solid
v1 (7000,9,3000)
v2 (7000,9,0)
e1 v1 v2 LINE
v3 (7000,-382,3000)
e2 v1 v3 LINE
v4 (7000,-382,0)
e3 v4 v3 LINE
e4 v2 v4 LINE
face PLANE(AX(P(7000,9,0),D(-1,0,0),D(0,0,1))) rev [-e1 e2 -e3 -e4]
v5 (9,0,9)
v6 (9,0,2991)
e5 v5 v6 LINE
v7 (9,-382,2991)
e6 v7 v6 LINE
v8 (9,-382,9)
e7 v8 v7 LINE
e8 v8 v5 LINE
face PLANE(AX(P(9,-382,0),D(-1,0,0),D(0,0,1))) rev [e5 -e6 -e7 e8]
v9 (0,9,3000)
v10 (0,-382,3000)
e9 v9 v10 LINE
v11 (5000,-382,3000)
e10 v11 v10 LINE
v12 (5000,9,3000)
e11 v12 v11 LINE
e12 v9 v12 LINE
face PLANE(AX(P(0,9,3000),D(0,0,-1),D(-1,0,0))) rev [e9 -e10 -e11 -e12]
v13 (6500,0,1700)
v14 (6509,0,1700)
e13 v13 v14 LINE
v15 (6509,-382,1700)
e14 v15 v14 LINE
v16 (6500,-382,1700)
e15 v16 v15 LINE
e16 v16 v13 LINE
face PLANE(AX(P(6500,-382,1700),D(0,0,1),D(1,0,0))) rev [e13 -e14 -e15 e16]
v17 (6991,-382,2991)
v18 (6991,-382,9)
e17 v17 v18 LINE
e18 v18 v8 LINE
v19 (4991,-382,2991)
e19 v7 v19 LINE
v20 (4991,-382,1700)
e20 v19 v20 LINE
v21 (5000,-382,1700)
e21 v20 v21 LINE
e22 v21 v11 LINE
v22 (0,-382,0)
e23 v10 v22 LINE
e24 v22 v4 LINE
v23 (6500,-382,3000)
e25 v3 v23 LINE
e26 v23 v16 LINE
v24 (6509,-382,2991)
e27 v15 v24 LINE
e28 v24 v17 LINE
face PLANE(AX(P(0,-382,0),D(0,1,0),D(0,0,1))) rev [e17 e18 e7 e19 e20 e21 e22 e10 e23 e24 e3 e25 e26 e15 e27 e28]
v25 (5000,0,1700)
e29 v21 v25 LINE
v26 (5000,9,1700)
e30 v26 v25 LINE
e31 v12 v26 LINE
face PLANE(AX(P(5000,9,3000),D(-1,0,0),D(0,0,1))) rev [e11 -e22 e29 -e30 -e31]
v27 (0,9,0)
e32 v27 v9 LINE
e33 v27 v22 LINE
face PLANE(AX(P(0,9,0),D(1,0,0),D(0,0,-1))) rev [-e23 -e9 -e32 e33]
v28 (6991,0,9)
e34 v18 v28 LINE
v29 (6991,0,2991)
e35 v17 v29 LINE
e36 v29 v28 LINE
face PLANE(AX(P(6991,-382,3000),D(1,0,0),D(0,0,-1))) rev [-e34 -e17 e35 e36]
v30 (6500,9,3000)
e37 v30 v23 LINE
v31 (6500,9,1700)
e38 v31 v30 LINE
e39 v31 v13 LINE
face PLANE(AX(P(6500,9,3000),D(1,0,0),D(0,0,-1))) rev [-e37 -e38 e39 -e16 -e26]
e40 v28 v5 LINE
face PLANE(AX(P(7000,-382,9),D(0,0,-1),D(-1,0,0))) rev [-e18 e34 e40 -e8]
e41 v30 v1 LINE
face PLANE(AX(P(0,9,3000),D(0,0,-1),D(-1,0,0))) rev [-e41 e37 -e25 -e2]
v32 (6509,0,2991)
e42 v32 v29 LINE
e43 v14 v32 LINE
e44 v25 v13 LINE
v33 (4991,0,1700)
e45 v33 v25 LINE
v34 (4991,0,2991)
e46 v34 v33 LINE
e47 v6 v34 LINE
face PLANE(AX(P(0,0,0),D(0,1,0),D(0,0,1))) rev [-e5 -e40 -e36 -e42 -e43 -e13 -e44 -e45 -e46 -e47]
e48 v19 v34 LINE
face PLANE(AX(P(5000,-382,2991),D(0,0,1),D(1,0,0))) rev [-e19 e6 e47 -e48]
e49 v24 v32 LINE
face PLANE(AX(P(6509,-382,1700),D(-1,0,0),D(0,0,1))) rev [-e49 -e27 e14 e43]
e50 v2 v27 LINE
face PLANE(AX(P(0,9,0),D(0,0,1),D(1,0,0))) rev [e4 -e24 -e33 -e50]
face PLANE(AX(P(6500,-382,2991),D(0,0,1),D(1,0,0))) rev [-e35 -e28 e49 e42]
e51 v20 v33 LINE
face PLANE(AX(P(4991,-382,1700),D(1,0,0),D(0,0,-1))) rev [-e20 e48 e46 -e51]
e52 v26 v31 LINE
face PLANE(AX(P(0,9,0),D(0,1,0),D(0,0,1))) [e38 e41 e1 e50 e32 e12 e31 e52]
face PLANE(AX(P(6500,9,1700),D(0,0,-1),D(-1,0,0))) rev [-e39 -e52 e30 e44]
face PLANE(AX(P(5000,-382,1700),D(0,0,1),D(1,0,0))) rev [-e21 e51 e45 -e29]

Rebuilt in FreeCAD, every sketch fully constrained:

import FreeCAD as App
import Part
import Sketcher
Q = App.Units.Quantity

doc = App.newDocument("Part")
params = doc.addObject("Spreadsheet::Sheet", "Params")
for row, (alias, value) in enumerate([
    ("sketch1_width", "7000 mm"),
    ("sketch1_height", "3000 mm"),
    ("pad1_length", "9 mm"),
    ("sketch2_width", "1500 mm"),
    ("sketch2_height", "1300 mm"),
    ("sketch3_width", "5000 mm"),
    ("sketch3_height", "9 mm"),
    ("pad2_length", "382 mm"),
    ("sketch4_width", "9 mm"),
    ("sketch4_height", "2991 mm"),
    ("pad3_length", "382 mm"),
    ("sketch5_width", "6991 mm"),
    ("sketch5_height", "9 mm"),
    ("pad4_length", "382 mm"),
    ("sketch6_width", "9 mm"),
    ("sketch6_height", "2991 mm"),
    ("pad5_length", "382 mm"),
    ("sketch7_width", "491 mm"),
    ("sketch7_height", "9 mm"),
    ("pad6_length", "382 mm"),
    ("sketch8_width", "9 mm"),
    ("sketch8_height", "1291 mm"),
    ("pad7_length", "382 mm"),
    ("sketch9_width", "9 mm"),
    ("sketch9_height", "1291 mm"),
    ("pad8_length", "382 mm"),
], start=1):
    params.set(f"A{row}", alias)
    params.set(f"B{row}", "=" + value)
    params.setAlias(f"B{row}", alias)

body = doc.addObject("PartDesign::Body", "Body")

# Sketch on XZ plane
sketch1 = body.newObject("Sketcher::SketchObject", "Sketch")
sketch1.AttachmentSupport = (doc.getObject("XZ_Plane"), [""])
sketch1.MapMode = "FlatFace"
sketch1.addGeometry(Part.LineSegment(App.Vector(0, 0, 0), App.Vector(0, 3000, 0)), False)
sketch1.addGeometry(Part.LineSegment(App.Vector(0, 3000, 0), App.Vector(7000, 3000, 0)), False)
sketch1.addGeometry(Part.LineSegment(App.Vector(7000, 3000, 0), App.Vector(7000, 0, 0)), False)
sketch1.addGeometry(Part.LineSegment(App.Vector(7000, 0, 0), App.Vector(0, 0, 0)), False)
sketch1.addConstraint(Sketcher.Constraint("Coincident", 0, 2, 1, 1))
sketch1.addConstraint(Sketcher.Constraint("Coincident", 1, 2, 2, 1))
sketch1.addConstraint(Sketcher.Constraint("Coincident", 2, 2, 3, 1))
sketch1.addConstraint(Sketcher.Constraint("Coincident", 3, 2, 0, 1))
sketch1.addConstraint(Sketcher.Constraint("Vertical", 0))
sketch1.addConstraint(Sketcher.Constraint("Horizontal", 1))
sketch1.addConstraint(Sketcher.Constraint("Vertical", 2))
sketch1.addConstraint(Sketcher.Constraint("Horizontal", 3))
sketch1.addConstraint(Sketcher.Constraint("Coincident", 3, 2, -1, 1))
sketch1.addConstraint(Sketcher.Constraint("DistanceX", 1, 1, 1, 2, Q("7000 mm")))
sketch1.addConstraint(Sketcher.Constraint("DistanceY", 0, 1, 0, 2, Q("3000 mm")))
sketch1.setExpression("Constraints[9]", "Params.sketch1_width")
sketch1.setExpression("Constraints[10]", "Params.sketch1_height")
pad1 = body.newObject("PartDesign::Pad", "Pad")
pad1.Profile = sketch1
pad1.setExpression("Length", "Params.pad1_length")
pad1.Reversed = True

# Sketch on XZ plane
sketch2 = body.newObject("Sketcher::SketchObject", "Sketch001")
sketch2.AttachmentSupport = (doc.getObject("XZ_Plane"), [""])
sketch2.MapMode = "FlatFace"
sketch2.addGeometry(Part.LineSegment(App.Vector(5000, 3000, 0), App.Vector(5000, 1700, 0)), False)
sketch2.addGeometry(Part.LineSegment(App.Vector(5000, 1700, 0), App.Vector(6500, 1700, 0)), False)
sketch2.addGeometry(Part.LineSegment(App.Vector(6500, 1700, 0), App.Vector(6500, 3000, 0)), False)
sketch2.addGeometry(Part.LineSegment(App.Vector(6500, 3000, 0), App.Vector(5000, 3000, 0)), False)
sketch2.addConstraint(Sketcher.Constraint("Coincident", 0, 2, 1, 1))
sketch2.addConstraint(Sketcher.Constraint("Coincident", 1, 2, 2, 1))
sketch2.addConstraint(Sketcher.Constraint("Coincident", 2, 2, 3, 1))
sketch2.addConstraint(Sketcher.Constraint("Coincident", 3, 2, 0, 1))
sketch2.addConstraint(Sketcher.Constraint("Vertical", 0))
sketch2.addConstraint(Sketcher.Constraint("Horizontal", 1))
sketch2.addConstraint(Sketcher.Constraint("Vertical", 2))
sketch2.addConstraint(Sketcher.Constraint("Horizontal", 3))
sketch2.addConstraint(Sketcher.Constraint("DistanceX", 1, 1, 1, 2, Q("1500 mm")))
sketch2.addConstraint(Sketcher.Constraint("DistanceY", 0, 2, 0, 1, Q("1300 mm")))
sketch2.addConstraint(Sketcher.Constraint("DistanceX", -1, 1, 0, 2, Q("5000 mm")))
sketch2.addConstraint(Sketcher.Constraint("DistanceY", -1, 1, 0, 2, Q("1700 mm")))
sketch2.setExpression("Constraints[8]", "Params.sketch2_width")
sketch2.setExpression("Constraints[9]", "Params.sketch2_height")
pocket1 = body.newObject("PartDesign::Pocket", "Pocket")
pocket1.Profile = sketch2
pocket1.Type = "ThroughAll"

# Sketch on XZ plane
sketch3 = body.newObject("Sketcher::SketchObject", "Sketch002")
sketch3.AttachmentSupport = (doc.getObject("XZ_Plane"), [""])
sketch3.MapMode = "FlatFace"
sketch3.addGeometry(Part.LineSegment(App.Vector(0, 3000, 0), App.Vector(0, 2991, 0)), False)
sketch3.addGeometry(Part.LineSegment(App.Vector(0, 2991, 0), App.Vector(5000, 2991, 0)), False)
sketch3.addGeometry(Part.LineSegment(App.Vector(5000, 2991, 0), App.Vector(5000, 3000, 0)), False)
sketch3.addGeometry(Part.LineSegment(App.Vector(5000, 3000, 0), App.Vector(0, 3000, 0)), False)
sketch3.addConstraint(Sketcher.Constraint("Coincident", 0, 2, 1, 1))
sketch3.addConstraint(Sketcher.Constraint("Coincident", 1, 2, 2, 1))
sketch3.addConstraint(Sketcher.Constraint("Coincident", 2, 2, 3, 1))
sketch3.addConstraint(Sketcher.Constraint("Coincident", 3, 2, 0, 1))
sketch3.addConstraint(Sketcher.Constraint("Vertical", 0))
sketch3.addConstraint(Sketcher.Constraint("Horizontal", 1))
sketch3.addConstraint(Sketcher.Constraint("Vertical", 2))
sketch3.addConstraint(Sketcher.Constraint("Horizontal", 3))
sketch3.addConstraint(Sketcher.Constraint("PointOnObject", 0, 2, -2))
sketch3.addConstraint(Sketcher.Constraint("DistanceX", 1, 1, 1, 2, Q("5000 mm")))
sketch3.addConstraint(Sketcher.Constraint("DistanceY", 0, 2, 0, 1, Q("9 mm")))
sketch3.addConstraint(Sketcher.Constraint("DistanceY", -1, 1, 0, 2, Q("2991 mm")))
sketch3.setExpression("Constraints[9]", "Params.sketch3_width")
sketch3.setExpression("Constraints[10]", "Params.sketch3_height")
pad2 = body.newObject("PartDesign::Pad", "Pad001")
pad2.Profile = sketch3
pad2.setExpression("Length", "Params.pad2_length")

# Sketch on XZ plane
sketch4 = body.newObject("Sketcher::SketchObject", "Sketch003")
sketch4.AttachmentSupport = (doc.getObject("XZ_Plane"), [""])
sketch4.MapMode = "FlatFace"
sketch4.addGeometry(Part.LineSegment(App.Vector(0, 2991, 0), App.Vector(0, 0, 0)), False)
sketch4.addGeometry(Part.LineSegment(App.Vector(0, 0, 0), App.Vector(9, 0, 0)), False)
sketch4.addGeometry(Part.LineSegment(App.Vector(9, 0, 0), App.Vector(9, 2991, 0)), False)
sketch4.addGeometry(Part.LineSegment(App.Vector(9, 2991, 0), App.Vector(0, 2991, 0)), False)
sketch4.addConstraint(Sketcher.Constraint("Coincident", 0, 2, 1, 1))
sketch4.addConstraint(Sketcher.Constraint("Coincident", 1, 2, 2, 1))
sketch4.addConstraint(Sketcher.Constraint("Coincident", 2, 2, 3, 1))
sketch4.addConstraint(Sketcher.Constraint("Coincident", 3, 2, 0, 1))
sketch4.addConstraint(Sketcher.Constraint("Vertical", 0))
sketch4.addConstraint(Sketcher.Constraint("Horizontal", 1))
sketch4.addConstraint(Sketcher.Constraint("Vertical", 2))
sketch4.addConstraint(Sketcher.Constraint("Horizontal", 3))
sketch4.addConstraint(Sketcher.Constraint("Coincident", 0, 2, -1, 1))
sketch4.addConstraint(Sketcher.Constraint("DistanceX", 1, 1, 1, 2, Q("9 mm")))
sketch4.addConstraint(Sketcher.Constraint("DistanceY", 0, 2, 0, 1, Q("2991 mm")))
sketch4.setExpression("Constraints[9]", "Params.sketch4_width")
sketch4.setExpression("Constraints[10]", "Params.sketch4_height")
pad3 = body.newObject("PartDesign::Pad", "Pad002")
pad3.Profile = sketch4
pad3.setExpression("Length", "Params.pad3_length")

# Sketch on XZ plane
sketch5 = body.newObject("Sketcher::SketchObject", "Sketch004")
sketch5.AttachmentSupport = (doc.getObject("XZ_Plane"), [""])
sketch5.MapMode = "FlatFace"
sketch5.addGeometry(Part.LineSegment(App.Vector(9, 9, 0), App.Vector(9, 0, 0)), False)
sketch5.addGeometry(Part.LineSegment(App.Vector(9, 0, 0), App.Vector(7000, 0, 0)), False)
sketch5.addGeometry(Part.LineSegment(App.Vector(7000, 0, 0), App.Vector(7000, 9, 0)), False)
sketch5.addGeometry(Part.LineSegment(App.Vector(7000, 9, 0), App.Vector(9, 9, 0)), False)
sketch5.addConstraint(Sketcher.Constraint("Coincident", 0, 2, 1, 1))
sketch5.addConstraint(Sketcher.Constraint("Coincident", 1, 2, 2, 1))
sketch5.addConstraint(Sketcher.Constraint("Coincident", 2, 2, 3, 1))
sketch5.addConstraint(Sketcher.Constraint("Coincident", 3, 2, 0, 1))
sketch5.addConstraint(Sketcher.Constraint("Vertical", 0))
sketch5.addConstraint(Sketcher.Constraint("Horizontal", 1))
sketch5.addConstraint(Sketcher.Constraint("Vertical", 2))
sketch5.addConstraint(Sketcher.Constraint("Horizontal", 3))
sketch5.addConstraint(Sketcher.Constraint("PointOnObject", 0, 2, -1))
sketch5.addConstraint(Sketcher.Constraint("DistanceX", 1, 1, 1, 2, Q("6991 mm")))
sketch5.addConstraint(Sketcher.Constraint("DistanceY", 0, 2, 0, 1, Q("9 mm")))
sketch5.addConstraint(Sketcher.Constraint("DistanceX", -1, 1, 0, 2, Q("9 mm")))
sketch5.setExpression("Constraints[9]", "Params.sketch5_width")
sketch5.setExpression("Constraints[10]", "Params.sketch5_height")
pad4 = body.newObject("PartDesign::Pad", "Pad003")
pad4.Profile = sketch5
pad4.setExpression("Length", "Params.pad4_length")

# Sketch on XZ plane
sketch6 = body.newObject("Sketcher::SketchObject", "Sketch005")
sketch6.AttachmentSupport = (doc.getObject("XZ_Plane"), [""])
sketch6.MapMode = "FlatFace"
sketch6.addGeometry(Part.LineSegment(App.Vector(6991, 3000, 0), App.Vector(6991, 9, 0)), False)
sketch6.addGeometry(Part.LineSegment(App.Vector(6991, 9, 0), App.Vector(7000, 9, 0)), False)
sketch6.addGeometry(Part.LineSegment(App.Vector(7000, 9, 0), App.Vector(7000, 3000, 0)), False)
sketch6.addGeometry(Part.LineSegment(App.Vector(7000, 3000, 0), App.Vector(6991, 3000, 0)), False)
sketch6.addConstraint(Sketcher.Constraint("Coincident", 0, 2, 1, 1))
sketch6.addConstraint(Sketcher.Constraint("Coincident", 1, 2, 2, 1))
sketch6.addConstraint(Sketcher.Constraint("Coincident", 2, 2, 3, 1))
sketch6.addConstraint(Sketcher.Constraint("Coincident", 3, 2, 0, 1))
sketch6.addConstraint(Sketcher.Constraint("Vertical", 0))
sketch6.addConstraint(Sketcher.Constraint("Horizontal", 1))
sketch6.addConstraint(Sketcher.Constraint("Vertical", 2))
sketch6.addConstraint(Sketcher.Constraint("Horizontal", 3))
sketch6.addConstraint(Sketcher.Constraint("DistanceX", 1, 1, 1, 2, Q("9 mm")))
sketch6.addConstraint(Sketcher.Constraint("DistanceY", 0, 2, 0, 1, Q("2991 mm")))
sketch6.addConstraint(Sketcher.Constraint("DistanceX", -1, 1, 0, 2, Q("6991 mm")))
sketch6.addConstraint(Sketcher.Constraint("DistanceY", -1, 1, 0, 2, Q("9 mm")))
sketch6.setExpression("Constraints[8]", "Params.sketch6_width")
sketch6.setExpression("Constraints[9]", "Params.sketch6_height")
pad5 = body.newObject("PartDesign::Pad", "Pad004")
pad5.Profile = sketch6
pad5.setExpression("Length", "Params.pad5_length")

# Sketch on XZ plane
sketch7 = body.newObject("Sketcher::SketchObject", "Sketch006")
sketch7.AttachmentSupport = (doc.getObject("XZ_Plane"), [""])
sketch7.MapMode = "FlatFace"
sketch7.addGeometry(Part.LineSegment(App.Vector(6500, 3000, 0), App.Vector(6500, 2991, 0)), False)
sketch7.addGeometry(Part.LineSegment(App.Vector(6500, 2991, 0), App.Vector(6991, 2991, 0)), False)
sketch7.addGeometry(Part.LineSegment(App.Vector(6991, 2991, 0), App.Vector(6991, 3000, 0)), False)
sketch7.addGeometry(Part.LineSegment(App.Vector(6991, 3000, 0), App.Vector(6500, 3000, 0)), False)
sketch7.addConstraint(Sketcher.Constraint("Coincident", 0, 2, 1, 1))
sketch7.addConstraint(Sketcher.Constraint("Coincident", 1, 2, 2, 1))
sketch7.addConstraint(Sketcher.Constraint("Coincident", 2, 2, 3, 1))
sketch7.addConstraint(Sketcher.Constraint("Coincident", 3, 2, 0, 1))
sketch7.addConstraint(Sketcher.Constraint("Vertical", 0))
sketch7.addConstraint(Sketcher.Constraint("Horizontal", 1))
sketch7.addConstraint(Sketcher.Constraint("Vertical", 2))
sketch7.addConstraint(Sketcher.Constraint("Horizontal", 3))
sketch7.addConstraint(Sketcher.Constraint("DistanceX", 1, 1, 1, 2, Q("491 mm")))
sketch7.addConstraint(Sketcher.Constraint("DistanceY", 0, 2, 0, 1, Q("9 mm")))
sketch7.addConstraint(Sketcher.Constraint("DistanceX", -1, 1, 0, 2, Q("6500 mm")))
sketch7.addConstraint(Sketcher.Constraint("DistanceY", -1, 1, 0, 2, Q("2991 mm")))
sketch7.setExpression("Constraints[8]", "Params.sketch7_width")
sketch7.setExpression("Constraints[9]", "Params.sketch7_height")
pad6 = body.newObject("PartDesign::Pad", "Pad005")
pad6.Profile = sketch7
pad6.setExpression("Length", "Params.pad6_length")

# Sketch on XZ plane
sketch8 = body.newObject("Sketcher::SketchObject", "Sketch007")
sketch8.AttachmentSupport = (doc.getObject("XZ_Plane"), [""])
sketch8.MapMode = "FlatFace"
sketch8.addGeometry(Part.LineSegment(App.Vector(6500, 2991, 0), App.Vector(6500, 1700, 0)), False)
sketch8.addGeometry(Part.LineSegment(App.Vector(6500, 1700, 0), App.Vector(6509, 1700, 0)), False)
sketch8.addGeometry(Part.LineSegment(App.Vector(6509, 1700, 0), App.Vector(6509, 2991, 0)), False)
sketch8.addGeometry(Part.LineSegment(App.Vector(6509, 2991, 0), App.Vector(6500, 2991, 0)), False)
sketch8.addConstraint(Sketcher.Constraint("Coincident", 0, 2, 1, 1))
sketch8.addConstraint(Sketcher.Constraint("Coincident", 1, 2, 2, 1))
sketch8.addConstraint(Sketcher.Constraint("Coincident", 2, 2, 3, 1))
sketch8.addConstraint(Sketcher.Constraint("Coincident", 3, 2, 0, 1))
sketch8.addConstraint(Sketcher.Constraint("Vertical", 0))
sketch8.addConstraint(Sketcher.Constraint("Horizontal", 1))
sketch8.addConstraint(Sketcher.Constraint("Vertical", 2))
sketch8.addConstraint(Sketcher.Constraint("Horizontal", 3))
sketch8.addConstraint(Sketcher.Constraint("DistanceX", 1, 1, 1, 2, Q("9 mm")))
sketch8.addConstraint(Sketcher.Constraint("DistanceY", 0, 2, 0, 1, Q("1291 mm")))
sketch8.addConstraint(Sketcher.Constraint("DistanceX", -1, 1, 0, 2, Q("6500 mm")))
sketch8.addConstraint(Sketcher.Constraint("DistanceY", -1, 1, 0, 2, Q("1700 mm")))
sketch8.setExpression("Constraints[8]", "Params.sketch8_width")
sketch8.setExpression("Constraints[9]", "Params.sketch8_height")
pad7 = body.newObject("PartDesign::Pad", "Pad006")
pad7.Profile = sketch8
pad7.setExpression("Length", "Params.pad7_length")

# Sketch on XZ plane
sketch9 = body.newObject("Sketcher::SketchObject", "Sketch008")
sketch9.AttachmentSupport = (doc.getObject("XZ_Plane"), [""])
sketch9.MapMode = "FlatFace"
sketch9.addGeometry(Part.LineSegment(App.Vector(4991, 2991, 0), App.Vector(4991, 1700, 0)), False)
sketch9.addGeometry(Part.LineSegment(App.Vector(4991, 1700, 0), App.Vector(5000, 1700, 0)), False)
sketch9.addGeometry(Part.LineSegment(App.Vector(5000, 1700, 0), App.Vector(5000, 2991, 0)), False)
sketch9.addGeometry(Part.LineSegment(App.Vector(5000, 2991, 0), App.Vector(4991, 2991, 0)), False)
sketch9.addConstraint(Sketcher.Constraint("Coincident", 0, 2, 1, 1))
sketch9.addConstraint(Sketcher.Constraint("Coincident", 1, 2, 2, 1))
sketch9.addConstraint(Sketcher.Constraint("Coincident", 2, 2, 3, 1))
sketch9.addConstraint(Sketcher.Constraint("Coincident", 3, 2, 0, 1))
sketch9.addConstraint(Sketcher.Constraint("Vertical", 0))
sketch9.addConstraint(Sketcher.Constraint("Horizontal", 1))
sketch9.addConstraint(Sketcher.Constraint("Vertical", 2))
sketch9.addConstraint(Sketcher.Constraint("Horizontal", 3))
sketch9.addConstraint(Sketcher.Constraint("DistanceX", 1, 1, 1, 2, Q("9 mm")))
sketch9.addConstraint(Sketcher.Constraint("DistanceY", 0, 2, 0, 1, Q("1291 mm")))
sketch9.addConstraint(Sketcher.Constraint("DistanceX", -1, 1, 0, 2, Q("4991 mm")))
sketch9.addConstraint(Sketcher.Constraint("DistanceY", -1, 1, 0, 2, Q("1700 mm")))
sketch9.setExpression("Constraints[8]", "Params.sketch9_width")
sketch9.setExpression("Constraints[9]", "Params.sketch9_height")
pad8 = body.newObject("PartDesign::Pad", "Pad007")
pad8.Profile = sketch9
pad8.setExpression("Length", "Params.pad8_length")

doc.recompute()
